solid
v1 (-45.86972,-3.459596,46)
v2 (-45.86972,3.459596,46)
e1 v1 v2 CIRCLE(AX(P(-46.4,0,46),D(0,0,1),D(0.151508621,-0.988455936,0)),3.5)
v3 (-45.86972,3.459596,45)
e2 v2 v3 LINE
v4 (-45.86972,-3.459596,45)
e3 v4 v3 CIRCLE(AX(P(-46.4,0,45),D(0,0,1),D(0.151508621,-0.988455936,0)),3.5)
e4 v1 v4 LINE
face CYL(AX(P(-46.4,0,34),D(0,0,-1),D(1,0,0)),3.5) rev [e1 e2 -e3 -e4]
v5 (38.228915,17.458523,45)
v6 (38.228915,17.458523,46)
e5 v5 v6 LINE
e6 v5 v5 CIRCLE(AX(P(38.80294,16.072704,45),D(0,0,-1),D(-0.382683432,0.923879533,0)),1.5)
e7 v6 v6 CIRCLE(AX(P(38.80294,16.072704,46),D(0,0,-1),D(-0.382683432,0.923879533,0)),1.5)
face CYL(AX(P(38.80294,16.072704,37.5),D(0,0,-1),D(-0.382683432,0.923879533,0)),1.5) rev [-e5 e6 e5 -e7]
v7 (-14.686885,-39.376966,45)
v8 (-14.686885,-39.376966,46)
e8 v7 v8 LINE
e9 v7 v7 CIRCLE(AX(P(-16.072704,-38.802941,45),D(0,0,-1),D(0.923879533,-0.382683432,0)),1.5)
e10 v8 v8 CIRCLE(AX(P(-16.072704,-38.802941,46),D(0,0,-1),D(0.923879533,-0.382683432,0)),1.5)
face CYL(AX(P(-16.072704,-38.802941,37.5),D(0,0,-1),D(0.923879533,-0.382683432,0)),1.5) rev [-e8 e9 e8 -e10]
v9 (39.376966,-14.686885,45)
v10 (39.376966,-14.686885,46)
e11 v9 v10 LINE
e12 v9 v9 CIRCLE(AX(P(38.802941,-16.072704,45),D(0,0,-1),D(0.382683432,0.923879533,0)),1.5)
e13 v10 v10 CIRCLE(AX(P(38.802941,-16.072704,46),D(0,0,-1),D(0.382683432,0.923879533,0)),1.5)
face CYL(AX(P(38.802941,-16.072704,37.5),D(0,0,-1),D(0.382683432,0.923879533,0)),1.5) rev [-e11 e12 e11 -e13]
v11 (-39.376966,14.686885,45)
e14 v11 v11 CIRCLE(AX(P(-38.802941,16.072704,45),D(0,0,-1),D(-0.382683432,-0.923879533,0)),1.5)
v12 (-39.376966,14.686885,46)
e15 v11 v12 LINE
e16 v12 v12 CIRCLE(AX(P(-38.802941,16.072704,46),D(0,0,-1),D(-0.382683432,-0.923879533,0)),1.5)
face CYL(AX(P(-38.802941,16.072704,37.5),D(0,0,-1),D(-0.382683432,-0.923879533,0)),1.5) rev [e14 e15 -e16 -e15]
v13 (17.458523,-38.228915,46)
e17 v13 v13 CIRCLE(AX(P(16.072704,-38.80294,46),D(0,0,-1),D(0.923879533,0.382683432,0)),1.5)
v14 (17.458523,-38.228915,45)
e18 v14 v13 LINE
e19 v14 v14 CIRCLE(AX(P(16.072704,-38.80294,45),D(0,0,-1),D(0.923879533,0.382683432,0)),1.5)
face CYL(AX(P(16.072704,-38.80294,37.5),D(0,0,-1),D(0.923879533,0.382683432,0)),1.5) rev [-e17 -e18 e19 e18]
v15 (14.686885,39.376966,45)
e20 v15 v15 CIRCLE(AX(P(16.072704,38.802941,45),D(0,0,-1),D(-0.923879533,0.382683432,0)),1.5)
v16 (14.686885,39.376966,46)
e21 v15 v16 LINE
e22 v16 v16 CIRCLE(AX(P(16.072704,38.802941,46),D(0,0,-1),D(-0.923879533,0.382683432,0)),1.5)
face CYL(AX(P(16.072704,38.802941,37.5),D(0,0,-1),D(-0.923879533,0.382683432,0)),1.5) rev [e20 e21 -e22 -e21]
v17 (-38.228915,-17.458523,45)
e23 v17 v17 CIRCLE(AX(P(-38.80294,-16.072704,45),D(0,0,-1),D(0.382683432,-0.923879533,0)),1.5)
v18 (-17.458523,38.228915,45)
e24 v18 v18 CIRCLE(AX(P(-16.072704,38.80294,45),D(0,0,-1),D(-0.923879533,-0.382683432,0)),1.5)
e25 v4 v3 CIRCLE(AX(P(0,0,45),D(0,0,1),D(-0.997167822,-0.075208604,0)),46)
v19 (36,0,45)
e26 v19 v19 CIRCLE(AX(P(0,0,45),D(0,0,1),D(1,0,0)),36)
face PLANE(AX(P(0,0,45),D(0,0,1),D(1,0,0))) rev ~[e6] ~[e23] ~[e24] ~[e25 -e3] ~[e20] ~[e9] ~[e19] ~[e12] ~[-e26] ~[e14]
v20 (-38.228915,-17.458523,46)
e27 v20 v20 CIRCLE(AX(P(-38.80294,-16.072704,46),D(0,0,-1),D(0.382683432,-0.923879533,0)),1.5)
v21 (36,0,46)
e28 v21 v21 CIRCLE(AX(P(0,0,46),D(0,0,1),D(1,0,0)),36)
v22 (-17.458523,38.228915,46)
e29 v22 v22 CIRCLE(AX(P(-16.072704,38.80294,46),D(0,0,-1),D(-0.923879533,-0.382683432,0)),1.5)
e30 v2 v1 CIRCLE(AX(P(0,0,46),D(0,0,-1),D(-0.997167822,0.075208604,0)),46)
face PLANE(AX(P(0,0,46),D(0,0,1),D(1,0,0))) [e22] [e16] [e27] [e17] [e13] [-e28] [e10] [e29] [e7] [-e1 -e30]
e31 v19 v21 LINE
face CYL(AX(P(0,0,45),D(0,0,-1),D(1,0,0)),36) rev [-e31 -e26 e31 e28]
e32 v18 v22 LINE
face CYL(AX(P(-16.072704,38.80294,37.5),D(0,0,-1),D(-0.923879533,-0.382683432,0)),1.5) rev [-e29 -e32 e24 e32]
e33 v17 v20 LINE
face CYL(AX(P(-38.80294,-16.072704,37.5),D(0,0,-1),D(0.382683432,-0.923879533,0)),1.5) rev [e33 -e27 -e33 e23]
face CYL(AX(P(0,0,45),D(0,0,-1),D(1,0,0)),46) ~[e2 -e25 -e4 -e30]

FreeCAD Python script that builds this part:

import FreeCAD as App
import Part
import Sketcher

V = App.Vector


def add_polygon(sketch, points):
    """Adds a closed chain of lines whose ends are joined by coincident constraints."""
    first, n = sketch.GeometryCount, len(points)
    for a, b in zip(points, points[1:] + points[:1]):
        sketch.addGeometry(Part.LineSegment(App.Vector(*a, 0), App.Vector(*b, 0)), False)
    for i in range(n):
        sketch.addConstraint(Sketcher.Constraint("Coincident", first + i, 2, first + (i + 1) % n, 1))

doc = App.newDocument("Part")
body = doc.addObject("PartDesign::Body", "Body")

# Sketch on XY plane
sketch1 = body.newObject("Sketcher::SketchObject", "Sketch")
sketch1.AttachmentSupport = (doc.getObject("XY_Plane"), [""])
sketch1.MapMode = "FlatFace"
add_polygon(sketch1, [(0, 8), (0, 0), (6, 0), (6, 8)])  # lines 0-3
sketch1.addConstraint(Sketcher.Constraint("Vertical", 0))
sketch1.addConstraint(Sketcher.Constraint("Horizontal", 1))
sketch1.addConstraint(Sketcher.Constraint("Vertical", 2))
sketch1.addConstraint(Sketcher.Constraint("Horizontal", 3))
sketch1.addConstraint(Sketcher.Constraint("Coincident", 0, 2, -1, 1))
sketch1.addConstraint(Sketcher.Constraint("DistanceX", 1, 1, 1, 2, 6.0))
sketch1.addConstraint(Sketcher.Constraint("DistanceY", 0, 2, 0, 1, 8.0))
pad1 = body.newObject("PartDesign::Pad", "Pad")
pad1.Profile = sketch1
pad1.Length = 2
body2 = doc.addObject("PartDesign::Body", "Body001")
doc.recompute()

body.Placement = App.Placement(V(30.405592, -34.648232, 33), App.Rotation(V(0, 0, 1), 45))
boolean = body2.newObject("PartDesign::Boolean", "Boolean")
boolean.Type = "Fuse"
boolean.addObjects([body])
body3 = doc.addObject("PartDesign::Body", "Body002")

# Sketch on XY plane
sketch2 = body3.newObject("Sketcher::SketchObject", "Sketch001")
sketch2.AttachmentSupport = (doc.getObject("XY_Plane002"), [""])
sketch2.MapMode = "FlatFace"
sketch2.AttachmentOffset = App.Placement(V(0, 0, 33), App.Rotation())
add_polygon(sketch2, [(38, -3), (46, -3), (46, 3), (38, 3)])  # lines 0-3
sketch2.addConstraint(Sketcher.Constraint("Horizontal", 0))
sketch2.addConstraint(Sketcher.Constraint("Vertical", 1))
sketch2.addConstraint(Sketcher.Constraint("Horizontal", 2))
sketch2.addConstraint(Sketcher.Constraint("Vertical", 3))
sketch2.addConstraint(Sketcher.Constraint("DistanceX", 0, 1, 0, 2, 8.0))
sketch2.addConstraint(Sketcher.Constraint("DistanceY", 1, 1, 1, 2, 6.0))
sketch2.addConstraint(Sketcher.Constraint("DistanceX", -1, 1, 0, 2, 46.0))
sketch2.addConstraint(Sketcher.Constraint("DistanceY", 0, 2, -1, 1, 3.0))
pad2 = body3.newObject("PartDesign::Pad", "Pad001")
pad2.Profile = sketch2
pad2.Length = 2
body4 = doc.addObject("PartDesign::Body", "Body003")

# Sketch on XY plane
sketch3 = body4.newObject("Sketcher::SketchObject", "Sketch002")
sketch3.AttachmentSupport = (doc.getObject("XY_Plane003"), [""])
sketch3.MapMode = "FlatFace"
sketch3.AttachmentOffset = App.Placement(V(0, 0, 33), App.Rotation())
add_polygon(sketch3, [(-3, -38), (-3, -46), (3, -46), (3, -38)])  # lines 0-3
sketch3.addConstraint(Sketcher.Constraint("Vertical", 0))
sketch3.addConstraint(Sketcher.Constraint("Horizontal", 1))
sketch3.addConstraint(Sketcher.Constraint("Vertical", 2))
sketch3.addConstraint(Sketcher.Constraint("Horizontal", 3))
sketch3.addConstraint(Sketcher.Constraint("DistanceX", 1, 1, 1, 2, 6.0))
sketch3.addConstraint(Sketcher.Constraint("DistanceY", 0, 2, 0, 1, 8.0))
sketch3.addConstraint(Sketcher.Constraint("DistanceX", 0, 2, -1, 1, 3.0))
sketch3.addConstraint(Sketcher.Constraint("DistanceY", 0, 2, -1, 1, 46.0))
pad3 = body4.newObject("PartDesign::Pad", "Pad002")
pad3.Profile = sketch3
pad3.Length = 2
body5 = doc.addObject("PartDesign::Body", "Body004")

# Sketch on XY plane
sketch4 = body5.newObject("Sketcher::SketchObject", "Sketch003")
sketch4.AttachmentSupport = (doc.getObject("XY_Plane004"), [""])
sketch4.MapMode = "FlatFace"
add_polygon(sketch4, [(0, 8), (0, 0), (6, 0), (6, 8)])  # lines 0-3
sketch4.addConstraint(Sketcher.Constraint("Vertical", 0))
sketch4.addConstraint(Sketcher.Constraint("Horizontal", 1))
sketch4.addConstraint(Sketcher.Constraint("Vertical", 2))
sketch4.addConstraint(Sketcher.Constraint("Horizontal", 3))
sketch4.addConstraint(Sketcher.Constraint("Coincident", 0, 2, -1, 1))
sketch4.addConstraint(Sketcher.Constraint("DistanceX", 1, 1, 1, 2, 6.0))
sketch4.addConstraint(Sketcher.Constraint("DistanceY", 0, 2, 0, 1, 8.0))
pad4 = body5.newObject("PartDesign::Pad", "Pad003")
pad4.Profile = sketch4
pad4.Length = 2
body6 = doc.addObject("PartDesign::Body", "Body005")
doc.recompute()

body5.Placement = App.Placement(V(34.648232, 30.405592, 33), App.Rotation(V(0, 0, 1), 135))
boolean2 = body6.newObject("PartDesign::Boolean", "Boolean001")
boolean2.Type = "Fuse"
boolean2.addObjects([body5])
body7 = doc.addObject("PartDesign::Body", "Body006")

# Sketch on XY plane
sketch5 = body7.newObject("Sketcher::SketchObject", "Sketch004")
sketch5.AttachmentSupport = (doc.getObject("XY_Plane006"), [""])
sketch5.MapMode = "FlatFace"
sketch5.AttachmentOffset = App.Placement(V(0, 0, 33), App.Rotation())
add_polygon(sketch5, [(3, 38), (3, 46), (-3, 46), (-3, 38)])  # lines 0-3
sketch5.addConstraint(Sketcher.Constraint("Vertical", 0))
sketch5.addConstraint(Sketcher.Constraint("Horizontal", 1))
sketch5.addConstraint(Sketcher.Constraint("Vertical", 2))
sketch5.addConstraint(Sketcher.Constraint("Horizontal", 3))
sketch5.addConstraint(Sketcher.Constraint("DistanceX", 1, 2, 1, 1, 6.0))
sketch5.addConstraint(Sketcher.Constraint("DistanceY", 0, 1, 0, 2, 8.0))
sketch5.addConstraint(Sketcher.Constraint("DistanceX", -1, 1, 0, 2, 3.0))
sketch5.addConstraint(Sketcher.Constraint("DistanceY", -1, 1, 0, 2, 46.0))
pad5 = body7.newObject("PartDesign::Pad", "Pad004")
pad5.Profile = sketch5
pad5.Length = 2
body8 = doc.addObject("PartDesign::Body", "Body007")

# Sketch on XY plane
sketch6 = body8.newObject("Sketcher::SketchObject", "Sketch005")
sketch6.AttachmentSupport = (doc.getObject("XY_Plane007"), [""])
sketch6.MapMode = "FlatFace"
add_polygon(sketch6, [(0, 8), (0, 0), (6, 0), (6, 8)])  # lines 0-3
sketch6.addConstraint(Sketcher.Constraint("Vertical", 0))
sketch6.addConstraint(Sketcher.Constraint("Horizontal", 1))
sketch6.addConstraint(Sketcher.Constraint("Vertical", 2))
sketch6.addConstraint(Sketcher.Constraint("Horizontal", 3))
sketch6.addConstraint(Sketcher.Constraint("Coincident", 0, 2, -1, 1))
sketch6.addConstraint(Sketcher.Constraint("DistanceX", 1, 1, 1, 2, 6.0))
sketch6.addConstraint(Sketcher.Constraint("DistanceY", 0, 2, 0, 1, 8.0))
pad6 = body8.newObject("PartDesign::Pad", "Pad005")
pad6.Profile = sketch6
pad6.Length = 2
body9 = doc.addObject("PartDesign::Body", "Body008")
doc.recompute()

body8.Placement = App.Placement(V(-30.405592, 34.648232, 33), App.Rotation(V(0, 0, 1), 225))
boolean3 = body9.newObject("PartDesign::Boolean", "Boolean002")
boolean3.Type = "Fuse"
boolean3.addObjects([body8])
body10 = doc.addObject("PartDesign::Body", "Body009")

# Sketch on XY plane
sketch7 = body10.newObject("Sketcher::SketchObject", "Sketch006")
sketch7.AttachmentSupport = (doc.getObject("XY_Plane009"), [""])
sketch7.MapMode = "FlatFace"
sketch7.AttachmentOffset = App.Placement(V(0, 0, 33), App.Rotation())
add_polygon(sketch7, [(-38, 3), (-46, 3), (-46, -3), (-38, -3)])  # lines 0-3
sketch7.addConstraint(Sketcher.Constraint("Horizontal", 0))
sketch7.addConstraint(Sketcher.Constraint("Vertical", 1))
sketch7.addConstraint(Sketcher.Constraint("Horizontal", 2))
sketch7.addConstraint(Sketcher.Constraint("Vertical", 3))
sketch7.addConstraint(Sketcher.Constraint("DistanceX", 0, 2, 0, 1, 8.0))
sketch7.addConstraint(Sketcher.Constraint("DistanceY", 1, 2, 1, 1, 6.0))
sketch7.addConstraint(Sketcher.Constraint("DistanceX", 0, 2, -1, 1, 46.0))
sketch7.addConstraint(Sketcher.Constraint("DistanceY", -1, 1, 0, 2, 3.0))
pad7 = body10.newObject("PartDesign::Pad", "Pad006")
pad7.Profile = sketch7
pad7.Length = 2
body11 = doc.addObject("PartDesign::Body", "Body010")

# Sketch on XY plane
sketch8 = body11.newObject("Sketcher::SketchObject", "Sketch007")
sketch8.AttachmentSupport = (doc.getObject("XY_Plane010"), [""])
sketch8.MapMode = "FlatFace"
add_polygon(sketch8, [(0, 8), (0, 0), (6, 0), (6, 8)])  # lines 0-3
sketch8.addConstraint(Sketcher.Constraint("Vertical", 0))
sketch8.addConstraint(Sketcher.Constraint("Horizontal", 1))
sketch8.addConstraint(Sketcher.Constraint("Vertical", 2))
sketch8.addConstraint(Sketcher.Constraint("Horizontal", 3))
sketch8.addConstraint(Sketcher.Constraint("Coincident", 0, 2, -1, 1))
sketch8.addConstraint(Sketcher.Constraint("DistanceX", 1, 1, 1, 2, 6.0))
sketch8.addConstraint(Sketcher.Constraint("DistanceY", 0, 2, 0, 1, 8.0))
pad8 = body11.newObject("PartDesign::Pad", "Pad007")
pad8.Profile = sketch8
pad8.Length = 2
body12 = doc.addObject("PartDesign::Body", "Body011")
body12.AllowCompound = True
doc.recompute()

body11.Placement = App.Placement(V(-34.648232, -30.405592, 33), App.Rotation(V(0, 0, -1), 45))
boolean4 = body12.newObject("PartDesign::Boolean", "Boolean003")
boolean4.Type = "Fuse"
boolean4.addObjects([body11])
doc.recompute()

boolean5 = body12.newObject("PartDesign::Boolean", "Boolean004")
boolean5.Type = "Fuse"
boolean5.addObjects([body2])
doc.recompute()

boolean6 = body12.newObject("PartDesign::Boolean", "Boolean005")
boolean6.Type = "Fuse"
boolean6.addObjects([body3])
doc.recompute()

boolean7 = body12.newObject("PartDesign::Boolean", "Boolean006")
boolean7.Type = "Fuse"
boolean7.addObjects([body4])
doc.recompute()

boolean8 = body12.newObject("PartDesign::Boolean", "Boolean007")
boolean8.Type = "Fuse"
boolean8.addObjects([body6])
doc.recompute()

boolean9 = body12.newObject("PartDesign::Boolean", "Boolean008")
boolean9.Type = "Fuse"
boolean9.addObjects([body7])
doc.recompute()

boolean10 = body12.newObject("PartDesign::Boolean", "Boolean009")
boolean10.Type = "Fuse"
boolean10.addObjects([body9])
doc.recompute()

boolean11 = body12.newObject("PartDesign::Boolean", "Boolean010")
boolean11.Type = "Fuse"
boolean11.addObjects([body10])
body13 = doc.addObject("PartDesign::Body", "Body012")
body13.AllowCompound = True
doc.recompute()

body12.Placement = App.Placement(V(0, 0, 7), App.Rotation(V(0, 0, 1), 22.5))
boolean12 = body13.newObject("PartDesign::Boolean", "Boolean011")
boolean12.Type = "Fuse"
boolean12.addObjects([body12])
body14 = doc.addObject("PartDesign::Body", "Body013")

# Sketch on XY plane
sketch9 = body14.newObject("Sketcher::SketchObject", "Sketch008")
sketch9.AttachmentSupport = (doc.getObject("XY_Plane013"), [""])
sketch9.MapMode = "FlatFace"
sketch9.addGeometry(Part.Circle(V(0, 0, 0), V(0, 0, 1), 1.5), False)
sketch9.addConstraint(Sketcher.Constraint("Coincident", 0, 3, -1, 1))
sketch9.addConstraint(Sketcher.Constraint("Diameter", 0, 3.0))
pad9 = body14.newObject("PartDesign::Pad", "Pad008")
pad9.Profile = sketch9
pad9.Length = 12
body15 = doc.addObject("PartDesign::Body", "Body014")
doc.recompute()

body14.Placement = App.Placement(V(29.698485, -29.698485, 33.5), App.Rotation(V(0, 0, 1), 45))
boolean13 = body15.newObject("PartDesign::Boolean", "Boolean012")
boolean13.Type = "Fuse"
boolean13.addObjects([body14])
body16 = doc.addObject("PartDesign::Body", "Body015")

# Sketch on XY plane
sketch10 = body16.newObject("Sketcher::SketchObject", "Sketch009")
sketch10.AttachmentSupport = (doc.getObject("XY_Plane015"), [""])
sketch10.MapMode = "FlatFace"
sketch10.AttachmentOffset = App.Placement(V(0, 0, 33.5), App.Rotation())
sketch10.addGeometry(Part.Circle(V(42, 0, 0), V(0, 0, 1), 1.5), False)
sketch10.addConstraint(Sketcher.Constraint("PointOnObject", 0, 3, -1))
sketch10.addConstraint(Sketcher.Constraint("Diameter", 0, 3.0))
sketch10.addConstraint(Sketcher.Constraint("DistanceX", -1, 1, 0, 3, 42.0))
pad10 = body16.newObject("PartDesign::Pad", "Pad009")
pad10.Profile = sketch10
pad10.Length = 12
body17 = doc.addObject("PartDesign::Body", "Body016")

# Sketch on XY plane
sketch11 = body17.newObject("Sketcher::SketchObject", "Sketch010")
sketch11.AttachmentSupport = (doc.getObject("XY_Plane016"), [""])
sketch11.MapMode = "FlatFace"
sketch11.addGeometry(Part.Circle(V(0, 0, 0), V(0, 0, 1), 1.5), False)
sketch11.addConstraint(Sketcher.Constraint("Coincident", 0, 3, -1, 1))
sketch11.addConstraint(Sketcher.Constraint("Diameter", 0, 3.0))
pad11 = body17.newObject("PartDesign::Pad", "Pad010")
pad11.Profile = sketch11
pad11.Length = 12
body18 = doc.addObject("PartDesign::Body", "Body017")
doc.recompute()

body17.Placement = App.Placement(V(29.698485, 29.698485, 33.5), App.Rotation(V(0, 0, 1), 135))
boolean14 = body18.newObject("PartDesign::Boolean", "Boolean013")
boolean14.Type = "Fuse"
boolean14.addObjects([body17])
body19 = doc.addObject("PartDesign::Body", "Body018")

# Sketch on XY plane
sketch12 = body19.newObject("Sketcher::SketchObject", "Sketch011")
sketch12.AttachmentSupport = (doc.getObject("XY_Plane018"), [""])
sketch12.MapMode = "FlatFace"
sketch12.AttachmentOffset = App.Placement(V(0, 0, 33.5), App.Rotation())
sketch12.addGeometry(Part.Circle(V(0, 42, 0), V(0, 0, 1), 1.5), False)
sketch12.addConstraint(Sketcher.Constraint("PointOnObject", 0, 3, -2))
sketch12.addConstraint(Sketcher.Constraint("Diameter", 0, 3.0))
sketch12.addConstraint(Sketcher.Constraint("DistanceY", -1, 1, 0, 3, 42.0))
pad12 = body19.newObject("PartDesign::Pad", "Pad011")
pad12.Profile = sketch12
pad12.Length = 12
body20 = doc.addObject("PartDesign::Body", "Body019")

# Sketch on XY plane
sketch13 = body20.newObject("Sketcher::SketchObject", "Sketch012")
sketch13.AttachmentSupport = (doc.getObject("XY_Plane019"), [""])
sketch13.MapMode = "FlatFace"
sketch13.addGeometry(Part.Circle(V(0, 0, 0), V(0, 0, 1), 1.5), False)
sketch13.addConstraint(Sketcher.Constraint("Coincident", 0, 3, -1, 1))
sketch13.addConstraint(Sketcher.Constraint("Diameter", 0, 3.0))
pad13 = body20.newObject("PartDesign::Pad", "Pad012")
pad13.Profile = sketch13
pad13.Length = 12
body21 = doc.addObject("PartDesign::Body", "Body020")
doc.recompute()

body20.Placement = App.Placement(V(-29.698485, 29.698485, 33.5), App.Rotation(V(0, 0, 1), 225))
boolean15 = body21.newObject("PartDesign::Boolean", "Boolean014")
boolean15.Type = "Fuse"
boolean15.addObjects([body20])
body22 = doc.addObject("PartDesign::Body", "Body021")

# Sketch on XY plane
sketch14 = body22.newObject("Sketcher::SketchObject", "Sketch013")
sketch14.AttachmentSupport = (doc.getObject("XY_Plane021"), [""])
sketch14.MapMode = "FlatFace"
sketch14.AttachmentOffset = App.Placement(V(0, 0, 33.5), App.Rotation())
sketch14.addGeometry(Part.Circle(V(-42, 0, 0), V(0, 0, 1), 1.5), False)
sketch14.addConstraint(Sketcher.Constraint("PointOnObject", 0, 3, -1))
sketch14.addConstraint(Sketcher.Constraint("Diameter", 0, 3.0))
sketch14.addConstraint(Sketcher.Constraint("DistanceX", 0, 3, -1, 1, 42.0))
pad14 = body22.newObject("PartDesign::Pad", "Pad013")
pad14.Profile = sketch14
pad14.Length = 12
body23 = doc.addObject("PartDesign::Body", "Body022")

# Sketch on XY plane
sketch15 = body23.newObject("Sketcher::SketchObject", "Sketch014")
sketch15.AttachmentSupport = (doc.getObject("XY_Plane022"), [""])
sketch15.MapMode = "FlatFace"
sketch15.addGeometry(Part.Circle(V(0, 0, 0), V(0, 0, 1), 1.5), False)
sketch15.addConstraint(Sketcher.Constraint("Coincident", 0, 3, -1, 1))
sketch15.addConstraint(Sketcher.Constraint("Diameter", 0, 3.0))
pad15 = body23.newObject("PartDesign::Pad", "Pad014")
pad15.Profile = sketch15
pad15.Length = 12
body24 = doc.addObject("PartDesign::Body", "Body023")
doc.recompute()

body23.Placement = App.Placement(V(-29.698485, -29.698485, 33.5), App.Rotation(V(0, 0, -1), 45))
boolean16 = body24.newObject("PartDesign::Boolean", "Boolean015")
boolean16.Type = "Fuse"
boolean16.addObjects([body23])
body25 = doc.addObject("PartDesign::Body", "Body024")
body25.AllowCompound = True

# Sketch on XY plane
sketch16 = body25.newObject("Sketcher::SketchObject", "Sketch015")
sketch16.AttachmentSupport = (doc.getObject("XY_Plane024"), [""])
sketch16.MapMode = "FlatFace"
sketch16.AttachmentOffset = App.Placement(V(0, 0, 33.5), App.Rotation())
sketch16.addGeometry(Part.Circle(V(0, -42, 0), V(0, 0, 1), 1.5), False)
sketch16.addConstraint(Sketcher.Constraint("PointOnObject", 0, 3, -2))
sketch16.addConstraint(Sketcher.Constraint("Diameter", 0, 3.0))
sketch16.addConstraint(Sketcher.Constraint("DistanceY", 0, 3, -1, 1, 42.0))
pad16 = body25.newObject("PartDesign::Pad", "Pad015")
pad16.Profile = sketch16
pad16.Length = 12
doc.recompute()

boolean17 = body25.newObject("PartDesign::Boolean", "Boolean016")
boolean17.Type = "Fuse"
boolean17.addObjects([body15])
doc.recompute()

boolean18 = body25.newObject("PartDesign::Boolean", "Boolean017")
boolean18.Type = "Fuse"
boolean18.addObjects([body16])
doc.recompute()

boolean19 = body25.newObject("PartDesign::Boolean", "Boolean018")
boolean19.Type = "Fuse"
boolean19.addObjects([body18])
doc.recompute()

boolean20 = body25.newObject("PartDesign::Boolean", "Boolean019")
boolean20.Type = "Fuse"
boolean20.addObjects([body19])
doc.recompute()

boolean21 = body25.newObject("PartDesign::Boolean", "Boolean020")
boolean21.Type = "Fuse"
boolean21.addObjects([body21])
doc.recompute()

boolean22 = body25.newObject("PartDesign::Boolean", "Boolean021")
boolean22.Type = "Fuse"
boolean22.addObjects([body22])
doc.recompute()

boolean23 = body25.newObject("PartDesign::Boolean", "Boolean022")
boolean23.Type = "Fuse"
boolean23.addObjects([body24])
body26 = doc.addObject("PartDesign::Body", "Body025")
body26.AllowCompound = True
doc.recompute()

body25.Placement = App.Placement(V(0, 0, 4), App.Rotation(V(0, 0, 1), 22.5))
boolean24 = body26.newObject("PartDesign::Boolean", "Boolean023")
boolean24.Type = "Fuse"
boolean24.addObjects([body25])
body27 = doc.addObject("PartDesign::Body", "Body026")

# Sketch on XY plane
sketch17 = body27.newObject("Sketcher::SketchObject", "Sketch016")
sketch17.AttachmentSupport = (doc.getObject("XY_Plane026"), [""])
sketch17.MapMode = "FlatFace"
sketch17.AttachmentOffset = App.Placement(V(0, 0, 34), App.Rotation())
sketch17.addGeometry(Part.Circle(V(-46.4, 0, 0), V(0, 0, 1), 3.5), False)
sketch17.addConstraint(Sketcher.Constraint("PointOnObject", 0, 3, -1))
sketch17.addConstraint(Sketcher.Constraint("Diameter", 0, 7.0))
sketch17.addConstraint(Sketcher.Constraint("DistanceX", 0, 3, -1, 1, 46.4))
pad17 = body27.newObject("PartDesign::Pad", "Pad016")
pad17.Profile = sketch17
pad17.Length = 20
body28 = doc.addObject("PartDesign::Body", "Body027")

# Sketch on XY plane
sketch18 = body28.newObject("Sketcher::SketchObject", "Sketch017")
sketch18.AttachmentSupport = (doc.getObject("XY_Plane027"), [""])
sketch18.MapMode = "FlatFace"
sketch18.AttachmentOffset = App.Placement(V(0, 0, 45), App.Rotation())
sketch18.addGeometry(Part.Circle(V(0, 0, 0), V(0, 0, 1), 46), False)
sketch18.addGeometry(Part.Circle(V(0, 0, 0), V(0, 0, 1), 36), False)
sketch18.addConstraint(Sketcher.Constraint("Coincident", 0, 3, -1, 1))
sketch18.addConstraint(Sketcher.Constraint("Coincident", 1, 3, -1, 1))
sketch18.addConstraint(Sketcher.Constraint("Diameter", 0, 92.0))
sketch18.addConstraint(Sketcher.Constraint("Diameter", 1, 72.0))
pad18 = body28.newObject("PartDesign::Pad", "Pad017")
pad18.Profile = sketch18
pad18.Length = 1
doc.recompute()

boolean25 = body28.newObject("PartDesign::Boolean", "Boolean024")
boolean25.Type = "Cut"
boolean25.addObjects([body27])
doc.recompute()

boolean26 = body28.newObject("PartDesign::Boolean", "Boolean025")
boolean26.Type = "Cut"
boolean26.addObjects([body26])
doc.recompute()

boolean27 = body28.newObject("PartDesign::Boolean", "Boolean026")
boolean27.Type = "Cut"
boolean27.addObjects([body13])

doc.recompute()
